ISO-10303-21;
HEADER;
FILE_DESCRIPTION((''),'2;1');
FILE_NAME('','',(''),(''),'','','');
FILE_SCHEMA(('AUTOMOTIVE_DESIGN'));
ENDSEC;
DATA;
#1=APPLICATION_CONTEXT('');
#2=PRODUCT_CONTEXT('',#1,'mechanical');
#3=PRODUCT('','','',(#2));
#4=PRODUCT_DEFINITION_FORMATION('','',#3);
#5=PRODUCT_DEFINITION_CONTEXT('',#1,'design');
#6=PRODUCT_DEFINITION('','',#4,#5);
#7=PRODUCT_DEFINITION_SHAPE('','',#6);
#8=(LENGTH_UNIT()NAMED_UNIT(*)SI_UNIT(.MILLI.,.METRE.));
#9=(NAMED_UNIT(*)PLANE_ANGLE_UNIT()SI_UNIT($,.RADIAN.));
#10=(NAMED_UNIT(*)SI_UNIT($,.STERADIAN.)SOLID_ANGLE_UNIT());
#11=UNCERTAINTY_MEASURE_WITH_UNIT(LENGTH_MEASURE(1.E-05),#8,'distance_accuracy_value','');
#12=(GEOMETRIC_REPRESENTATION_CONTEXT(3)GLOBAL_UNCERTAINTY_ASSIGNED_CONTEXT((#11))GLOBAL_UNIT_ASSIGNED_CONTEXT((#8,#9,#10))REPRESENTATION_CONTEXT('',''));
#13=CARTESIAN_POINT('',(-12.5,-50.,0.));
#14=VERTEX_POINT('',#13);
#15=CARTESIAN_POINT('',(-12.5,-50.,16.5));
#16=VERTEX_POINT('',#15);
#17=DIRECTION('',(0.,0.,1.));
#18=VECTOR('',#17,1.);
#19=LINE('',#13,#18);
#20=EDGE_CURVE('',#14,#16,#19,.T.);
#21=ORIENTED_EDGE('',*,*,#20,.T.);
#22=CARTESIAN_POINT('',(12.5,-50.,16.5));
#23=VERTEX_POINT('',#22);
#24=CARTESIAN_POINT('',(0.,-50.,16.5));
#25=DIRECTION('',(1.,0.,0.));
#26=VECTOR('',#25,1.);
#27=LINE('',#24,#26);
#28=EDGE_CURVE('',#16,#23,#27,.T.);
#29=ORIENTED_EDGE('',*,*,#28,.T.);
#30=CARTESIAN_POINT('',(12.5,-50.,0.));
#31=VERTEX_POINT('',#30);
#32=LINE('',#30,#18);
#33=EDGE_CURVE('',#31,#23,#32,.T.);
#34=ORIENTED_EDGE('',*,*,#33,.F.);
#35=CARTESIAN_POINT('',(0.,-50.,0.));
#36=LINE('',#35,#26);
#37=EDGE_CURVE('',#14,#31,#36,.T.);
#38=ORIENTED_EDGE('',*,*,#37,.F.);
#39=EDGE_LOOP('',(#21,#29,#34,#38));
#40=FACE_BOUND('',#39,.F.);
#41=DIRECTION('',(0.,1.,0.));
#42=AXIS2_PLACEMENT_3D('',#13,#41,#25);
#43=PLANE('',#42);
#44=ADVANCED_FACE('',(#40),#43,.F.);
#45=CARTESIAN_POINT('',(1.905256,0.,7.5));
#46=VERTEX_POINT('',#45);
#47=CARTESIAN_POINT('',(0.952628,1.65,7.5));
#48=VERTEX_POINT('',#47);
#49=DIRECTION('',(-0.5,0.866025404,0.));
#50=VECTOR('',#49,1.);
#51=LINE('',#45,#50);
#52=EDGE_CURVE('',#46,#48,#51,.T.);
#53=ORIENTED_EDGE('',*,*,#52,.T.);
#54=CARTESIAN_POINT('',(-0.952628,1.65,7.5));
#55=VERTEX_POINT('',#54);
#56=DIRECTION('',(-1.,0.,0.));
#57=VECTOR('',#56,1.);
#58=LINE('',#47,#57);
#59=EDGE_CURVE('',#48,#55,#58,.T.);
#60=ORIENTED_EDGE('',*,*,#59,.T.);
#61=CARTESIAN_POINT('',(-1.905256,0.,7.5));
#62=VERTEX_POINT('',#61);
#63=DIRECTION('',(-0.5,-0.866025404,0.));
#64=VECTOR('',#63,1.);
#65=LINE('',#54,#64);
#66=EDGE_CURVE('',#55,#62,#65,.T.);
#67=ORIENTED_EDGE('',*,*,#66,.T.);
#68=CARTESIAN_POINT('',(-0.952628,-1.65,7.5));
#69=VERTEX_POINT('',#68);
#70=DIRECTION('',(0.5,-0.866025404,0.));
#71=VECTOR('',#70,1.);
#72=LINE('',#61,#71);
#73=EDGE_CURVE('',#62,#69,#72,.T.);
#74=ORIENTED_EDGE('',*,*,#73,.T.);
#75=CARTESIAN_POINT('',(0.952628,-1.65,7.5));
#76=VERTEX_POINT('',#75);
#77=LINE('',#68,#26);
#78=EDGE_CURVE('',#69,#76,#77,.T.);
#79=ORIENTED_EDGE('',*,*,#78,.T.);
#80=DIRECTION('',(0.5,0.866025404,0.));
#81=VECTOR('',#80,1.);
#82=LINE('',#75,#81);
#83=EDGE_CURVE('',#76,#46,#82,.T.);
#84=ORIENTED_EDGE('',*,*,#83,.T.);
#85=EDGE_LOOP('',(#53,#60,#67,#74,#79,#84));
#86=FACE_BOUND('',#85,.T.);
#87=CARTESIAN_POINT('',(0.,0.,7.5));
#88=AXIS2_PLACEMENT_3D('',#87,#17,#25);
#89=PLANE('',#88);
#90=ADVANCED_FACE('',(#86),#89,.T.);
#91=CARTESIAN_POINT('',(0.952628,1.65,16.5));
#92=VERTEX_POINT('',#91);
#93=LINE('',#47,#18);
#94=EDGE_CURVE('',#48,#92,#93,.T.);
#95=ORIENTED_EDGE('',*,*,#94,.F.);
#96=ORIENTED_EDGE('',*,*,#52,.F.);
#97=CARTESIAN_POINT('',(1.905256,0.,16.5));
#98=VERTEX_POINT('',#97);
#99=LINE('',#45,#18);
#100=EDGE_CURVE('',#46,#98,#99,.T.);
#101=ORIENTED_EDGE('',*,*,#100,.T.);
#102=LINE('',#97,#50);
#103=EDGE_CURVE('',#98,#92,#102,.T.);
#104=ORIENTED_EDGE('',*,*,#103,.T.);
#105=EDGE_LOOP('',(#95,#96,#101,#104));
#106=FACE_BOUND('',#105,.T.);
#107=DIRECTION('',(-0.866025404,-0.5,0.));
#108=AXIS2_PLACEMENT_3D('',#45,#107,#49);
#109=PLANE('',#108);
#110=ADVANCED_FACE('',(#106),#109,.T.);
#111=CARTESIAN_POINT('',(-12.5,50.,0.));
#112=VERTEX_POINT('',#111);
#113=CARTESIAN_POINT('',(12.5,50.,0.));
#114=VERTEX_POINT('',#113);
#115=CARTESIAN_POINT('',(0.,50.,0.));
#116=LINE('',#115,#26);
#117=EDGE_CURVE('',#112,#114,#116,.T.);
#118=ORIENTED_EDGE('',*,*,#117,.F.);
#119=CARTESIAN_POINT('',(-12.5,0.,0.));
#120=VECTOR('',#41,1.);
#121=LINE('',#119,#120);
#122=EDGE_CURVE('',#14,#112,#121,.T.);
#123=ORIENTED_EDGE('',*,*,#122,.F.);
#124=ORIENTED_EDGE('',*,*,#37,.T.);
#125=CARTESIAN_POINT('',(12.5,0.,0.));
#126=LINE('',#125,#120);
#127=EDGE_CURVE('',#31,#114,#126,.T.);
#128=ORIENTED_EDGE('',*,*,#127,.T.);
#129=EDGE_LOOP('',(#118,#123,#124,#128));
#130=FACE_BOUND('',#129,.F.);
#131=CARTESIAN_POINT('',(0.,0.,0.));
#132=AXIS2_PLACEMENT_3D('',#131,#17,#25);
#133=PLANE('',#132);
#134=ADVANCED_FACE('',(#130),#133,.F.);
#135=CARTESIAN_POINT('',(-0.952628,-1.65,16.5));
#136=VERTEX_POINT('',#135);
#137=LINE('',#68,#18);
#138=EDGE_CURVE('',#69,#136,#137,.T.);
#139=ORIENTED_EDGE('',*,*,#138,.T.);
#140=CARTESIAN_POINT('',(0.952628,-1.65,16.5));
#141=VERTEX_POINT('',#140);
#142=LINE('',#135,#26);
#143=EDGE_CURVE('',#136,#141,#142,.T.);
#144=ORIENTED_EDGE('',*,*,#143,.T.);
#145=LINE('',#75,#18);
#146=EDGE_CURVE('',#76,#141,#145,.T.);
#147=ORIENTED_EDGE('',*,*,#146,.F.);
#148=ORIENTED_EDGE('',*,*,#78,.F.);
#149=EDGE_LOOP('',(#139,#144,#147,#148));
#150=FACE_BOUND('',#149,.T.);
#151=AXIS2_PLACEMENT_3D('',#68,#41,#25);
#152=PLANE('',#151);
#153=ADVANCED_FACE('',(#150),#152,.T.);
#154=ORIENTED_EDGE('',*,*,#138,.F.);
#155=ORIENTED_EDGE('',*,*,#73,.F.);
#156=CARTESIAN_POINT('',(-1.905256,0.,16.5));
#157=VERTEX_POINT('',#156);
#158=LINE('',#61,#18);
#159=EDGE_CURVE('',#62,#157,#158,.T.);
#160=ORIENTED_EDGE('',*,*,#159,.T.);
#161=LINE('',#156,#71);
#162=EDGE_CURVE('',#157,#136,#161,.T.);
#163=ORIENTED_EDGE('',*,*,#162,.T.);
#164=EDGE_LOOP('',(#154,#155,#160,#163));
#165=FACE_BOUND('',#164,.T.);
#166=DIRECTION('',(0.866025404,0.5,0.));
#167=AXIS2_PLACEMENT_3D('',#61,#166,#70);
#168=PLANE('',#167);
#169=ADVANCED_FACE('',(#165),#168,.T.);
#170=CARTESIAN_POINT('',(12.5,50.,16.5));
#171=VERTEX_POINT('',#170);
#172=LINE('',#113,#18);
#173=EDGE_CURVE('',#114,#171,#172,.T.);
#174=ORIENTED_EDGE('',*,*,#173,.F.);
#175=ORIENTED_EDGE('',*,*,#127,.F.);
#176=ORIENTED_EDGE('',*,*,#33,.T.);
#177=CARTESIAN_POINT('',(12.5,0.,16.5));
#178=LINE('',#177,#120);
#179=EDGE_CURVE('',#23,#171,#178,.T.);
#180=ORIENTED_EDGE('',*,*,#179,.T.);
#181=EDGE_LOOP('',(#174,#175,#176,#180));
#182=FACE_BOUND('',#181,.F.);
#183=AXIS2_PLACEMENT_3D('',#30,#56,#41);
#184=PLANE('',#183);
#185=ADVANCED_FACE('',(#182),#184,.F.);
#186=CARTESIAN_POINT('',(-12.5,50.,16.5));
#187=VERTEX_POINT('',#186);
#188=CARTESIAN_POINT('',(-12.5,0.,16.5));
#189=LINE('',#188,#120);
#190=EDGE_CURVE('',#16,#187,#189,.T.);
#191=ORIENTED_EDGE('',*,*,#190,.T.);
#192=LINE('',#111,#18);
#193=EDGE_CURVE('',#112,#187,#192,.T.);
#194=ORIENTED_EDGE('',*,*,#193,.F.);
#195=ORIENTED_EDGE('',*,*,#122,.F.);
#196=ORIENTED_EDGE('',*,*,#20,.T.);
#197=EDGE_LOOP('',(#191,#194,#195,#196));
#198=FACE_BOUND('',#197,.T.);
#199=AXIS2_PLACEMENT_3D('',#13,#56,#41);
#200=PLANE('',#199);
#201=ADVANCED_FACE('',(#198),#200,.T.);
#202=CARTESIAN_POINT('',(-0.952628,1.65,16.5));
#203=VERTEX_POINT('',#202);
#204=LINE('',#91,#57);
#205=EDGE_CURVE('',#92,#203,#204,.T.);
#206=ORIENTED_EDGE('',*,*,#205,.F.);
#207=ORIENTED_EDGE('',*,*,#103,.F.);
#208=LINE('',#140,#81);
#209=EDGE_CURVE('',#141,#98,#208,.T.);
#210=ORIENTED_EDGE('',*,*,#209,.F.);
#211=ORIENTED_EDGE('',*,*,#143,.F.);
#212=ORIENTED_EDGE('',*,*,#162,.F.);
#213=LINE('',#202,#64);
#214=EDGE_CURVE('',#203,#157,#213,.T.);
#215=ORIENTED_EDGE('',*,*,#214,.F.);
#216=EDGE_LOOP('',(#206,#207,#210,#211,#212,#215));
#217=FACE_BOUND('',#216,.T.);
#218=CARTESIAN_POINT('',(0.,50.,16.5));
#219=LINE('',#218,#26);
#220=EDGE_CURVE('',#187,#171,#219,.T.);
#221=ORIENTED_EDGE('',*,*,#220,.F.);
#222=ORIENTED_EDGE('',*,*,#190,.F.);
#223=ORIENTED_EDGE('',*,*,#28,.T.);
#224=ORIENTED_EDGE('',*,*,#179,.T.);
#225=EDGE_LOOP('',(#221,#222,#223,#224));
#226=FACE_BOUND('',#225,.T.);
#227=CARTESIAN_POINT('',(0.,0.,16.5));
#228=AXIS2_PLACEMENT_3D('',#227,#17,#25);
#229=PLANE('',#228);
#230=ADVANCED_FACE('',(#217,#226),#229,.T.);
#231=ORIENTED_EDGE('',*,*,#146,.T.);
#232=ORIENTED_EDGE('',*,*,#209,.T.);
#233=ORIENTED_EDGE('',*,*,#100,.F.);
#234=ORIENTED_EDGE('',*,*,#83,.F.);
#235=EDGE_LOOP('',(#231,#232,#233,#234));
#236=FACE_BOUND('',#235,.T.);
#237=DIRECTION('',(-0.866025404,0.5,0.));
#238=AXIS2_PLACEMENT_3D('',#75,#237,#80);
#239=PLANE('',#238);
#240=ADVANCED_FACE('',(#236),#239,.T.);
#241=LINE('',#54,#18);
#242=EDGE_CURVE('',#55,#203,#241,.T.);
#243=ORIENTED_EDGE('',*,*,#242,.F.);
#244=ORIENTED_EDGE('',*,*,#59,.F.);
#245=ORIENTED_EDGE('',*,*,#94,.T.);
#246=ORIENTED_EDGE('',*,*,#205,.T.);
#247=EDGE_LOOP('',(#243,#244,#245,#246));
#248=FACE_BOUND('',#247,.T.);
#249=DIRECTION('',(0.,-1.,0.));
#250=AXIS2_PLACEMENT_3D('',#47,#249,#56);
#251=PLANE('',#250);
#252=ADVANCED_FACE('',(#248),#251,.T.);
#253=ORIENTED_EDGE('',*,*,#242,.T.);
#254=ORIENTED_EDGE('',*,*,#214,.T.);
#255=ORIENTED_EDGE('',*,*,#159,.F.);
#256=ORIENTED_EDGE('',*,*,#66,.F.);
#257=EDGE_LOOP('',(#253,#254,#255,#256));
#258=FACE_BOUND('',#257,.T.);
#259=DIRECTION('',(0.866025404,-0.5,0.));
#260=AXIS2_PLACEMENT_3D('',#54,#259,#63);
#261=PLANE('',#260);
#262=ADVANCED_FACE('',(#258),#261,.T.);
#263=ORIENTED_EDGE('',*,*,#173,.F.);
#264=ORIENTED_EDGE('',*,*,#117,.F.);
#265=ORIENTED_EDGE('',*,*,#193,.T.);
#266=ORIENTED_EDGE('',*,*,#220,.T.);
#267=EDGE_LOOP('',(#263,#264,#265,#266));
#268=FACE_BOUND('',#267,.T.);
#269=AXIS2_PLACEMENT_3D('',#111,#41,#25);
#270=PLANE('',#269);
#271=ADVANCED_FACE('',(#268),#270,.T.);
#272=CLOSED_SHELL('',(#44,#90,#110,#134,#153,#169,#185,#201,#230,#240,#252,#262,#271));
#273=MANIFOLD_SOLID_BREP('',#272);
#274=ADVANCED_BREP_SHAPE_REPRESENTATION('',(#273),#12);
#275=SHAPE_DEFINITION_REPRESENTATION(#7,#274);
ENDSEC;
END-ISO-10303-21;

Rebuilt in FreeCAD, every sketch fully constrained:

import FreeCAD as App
import Part
import Sketcher
Q = App.Units.Quantity

doc = App.newDocument("Part")
params = doc.addObject("Spreadsheet::Sheet", "Params")
for row, (alias, value) in enumerate([
    ("sketch1_width", "25 mm"),
    ("sketch1_height", "100 mm"),
    ("pad1_length", "16.5 mm"),
    ("pocket1_length", "9 mm"),
], start=1):
    params.set(f"A{row}", alias)
    params.set(f"B{row}", "=" + value)
    params.setAlias(f"B{row}", alias)

body = doc.addObject("PartDesign::Body", "Body")

sketch1 = doc.addObject("Sketcher::SketchObject", "Sketch")
body.addObject(sketch1)
sketch1.AttachmentSupport = (doc.XY_Plane, [""])
sketch1.MapMode = "FlatFace"
sketch1.addGeometry(Part.LineSegment(App.Vector(-12.5, 50, 0), App.Vector(-12.5, -50, 0)), False)
sketch1.addGeometry(Part.LineSegment(App.Vector(-12.5, -50, 0), App.Vector(12.5, -50, 0)), False)
sketch1.addGeometry(Part.LineSegment(App.Vector(12.5, -50, 0), App.Vector(12.5, 50, 0)), False)
sketch1.addGeometry(Part.LineSegment(App.Vector(12.5, 50, 0), App.Vector(-12.5, 50, 0)), False)
sketch1.addConstraint(Sketcher.Constraint("Coincident", 0, 2, 1, 1))
sketch1.addConstraint(Sketcher.Constraint("Coincident", 1, 2, 2, 1))
sketch1.addConstraint(Sketcher.Constraint("Coincident", 2, 2, 3, 1))
sketch1.addConstraint(Sketcher.Constraint("Coincident", 3, 2, 0, 1))
sketch1.addConstraint(Sketcher.Constraint("Vertical", 0))
sketch1.addConstraint(Sketcher.Constraint("Horizontal", 1))
sketch1.addConstraint(Sketcher.Constraint("Vertical", 2))
sketch1.addConstraint(Sketcher.Constraint("Horizontal", 3))
sketch1.addConstraint(Sketcher.Constraint("Symmetric", 0, 2, 2, 2, -1, 1))
sketch1.addConstraint(Sketcher.Constraint("DistanceX", 1, 1, 1, 2, 25.0))
sketch1.addConstraint(Sketcher.Constraint("DistanceY", 0, 2, 0, 1, 100.0))
sketch1.setExpression("Constraints[9]", "Params.sketch1_width")
sketch1.setExpression("Constraints[10]", "Params.sketch1_height")
pad1 = doc.addObject("PartDesign::Pad", "Pad")
body.addObject(pad1)
pad1.Profile = sketch1
pad1.setExpression("Length", "Params.pad1_length")

sketch2 = doc.addObject("Sketcher::SketchObject", "Sketch001")
body.addObject(sketch2)
sketch2.AttachmentSupport = (doc.XY_Plane, [""])
sketch2.MapMode = "FlatFace"
sketch2.AttachmentOffset = App.Placement(App.Vector(0, 0, 7.5), App.Rotation())
sketch2.addGeometry(Part.LineSegment(App.Vector(0.952628, 1.65, 0), App.Vector(-0.952628, 1.65, 0)), False)
sketch2.addGeometry(Part.LineSegment(App.Vector(-0.952628, 1.65, 0), App.Vector(-1.905256, 0, 0)), False)
sketch2.addGeometry(Part.LineSegment(App.Vector(-1.905256, 0, 0), App.Vector(-0.952628, -1.65, 0)), False)
sketch2.addGeometry(Part.LineSegment(App.Vector(-0.952628, -1.65, 0), App.Vector(0.952628, -1.65, 0)), False)
sketch2.addGeometry(Part.LineSegment(App.Vector(0.952628, -1.65, 0), App.Vector(1.905256, 0, 0)), False)
sketch2.addGeometry(Part.LineSegment(App.Vector(1.905256, 0, 0), App.Vector(0.952628, 1.65, 0)), False)
sketch2.addConstraint(Sketcher.Constraint("Coincident", 0, 2, 1, 1))
sketch2.addConstraint(Sketcher.Constraint("Coincident", 1, 2, 2, 1))
sketch2.addConstraint(Sketcher.Constraint("Coincident", 2, 2, 3, 1))
sketch2.addConstraint(Sketcher.Constraint("Coincident", 3, 2, 4, 1))
sketch2.addConstraint(Sketcher.Constraint("Coincident", 4, 2, 5, 1))
sketch2.addConstraint(Sketcher.Constraint("Coincident", 5, 2, 0, 1))
sketch2.addConstraint(Sketcher.Constraint("Horizontal", 0))
sketch2.addConstraint(Sketcher.Constraint("Horizontal", 3))
sketch2.addConstraint(Sketcher.Constraint("Symmetric", 0, 2, 3, 2, -1, 1))
sketch2.addConstraint(Sketcher.Constraint("Symmetric", 1, 2, 4, 2, -1, 1))
sketch2.addConstraint(Sketcher.Constraint("PointOnObject", 1, 2, -1))
sketch2.addConstraint(Sketcher.Constraint("Parallel", 2, 5))
sketch2.addConstraint(Sketcher.Constraint("Vertical", 0, 2, 2, 2))
sketch2.addConstraint(Sketcher.Constraint("Angle", 1, Q("-120 deg")))
sketch2.addConstraint(Sketcher.Constraint("DistanceY", 2, 2, 0, 2, 3.3))
sketch2.addConstraint(Sketcher.Constraint("DistanceX", 0, 2, 0, 1, 1.905256))
pocket1 = doc.addObject("PartDesign::Pocket", "Pocket")
body.addObject(pocket1)
pocket1.Profile = sketch2
pocket1.setExpression("Length", "Params.pocket1_length")
pocket1.Reversed = True

doc.recompute()
